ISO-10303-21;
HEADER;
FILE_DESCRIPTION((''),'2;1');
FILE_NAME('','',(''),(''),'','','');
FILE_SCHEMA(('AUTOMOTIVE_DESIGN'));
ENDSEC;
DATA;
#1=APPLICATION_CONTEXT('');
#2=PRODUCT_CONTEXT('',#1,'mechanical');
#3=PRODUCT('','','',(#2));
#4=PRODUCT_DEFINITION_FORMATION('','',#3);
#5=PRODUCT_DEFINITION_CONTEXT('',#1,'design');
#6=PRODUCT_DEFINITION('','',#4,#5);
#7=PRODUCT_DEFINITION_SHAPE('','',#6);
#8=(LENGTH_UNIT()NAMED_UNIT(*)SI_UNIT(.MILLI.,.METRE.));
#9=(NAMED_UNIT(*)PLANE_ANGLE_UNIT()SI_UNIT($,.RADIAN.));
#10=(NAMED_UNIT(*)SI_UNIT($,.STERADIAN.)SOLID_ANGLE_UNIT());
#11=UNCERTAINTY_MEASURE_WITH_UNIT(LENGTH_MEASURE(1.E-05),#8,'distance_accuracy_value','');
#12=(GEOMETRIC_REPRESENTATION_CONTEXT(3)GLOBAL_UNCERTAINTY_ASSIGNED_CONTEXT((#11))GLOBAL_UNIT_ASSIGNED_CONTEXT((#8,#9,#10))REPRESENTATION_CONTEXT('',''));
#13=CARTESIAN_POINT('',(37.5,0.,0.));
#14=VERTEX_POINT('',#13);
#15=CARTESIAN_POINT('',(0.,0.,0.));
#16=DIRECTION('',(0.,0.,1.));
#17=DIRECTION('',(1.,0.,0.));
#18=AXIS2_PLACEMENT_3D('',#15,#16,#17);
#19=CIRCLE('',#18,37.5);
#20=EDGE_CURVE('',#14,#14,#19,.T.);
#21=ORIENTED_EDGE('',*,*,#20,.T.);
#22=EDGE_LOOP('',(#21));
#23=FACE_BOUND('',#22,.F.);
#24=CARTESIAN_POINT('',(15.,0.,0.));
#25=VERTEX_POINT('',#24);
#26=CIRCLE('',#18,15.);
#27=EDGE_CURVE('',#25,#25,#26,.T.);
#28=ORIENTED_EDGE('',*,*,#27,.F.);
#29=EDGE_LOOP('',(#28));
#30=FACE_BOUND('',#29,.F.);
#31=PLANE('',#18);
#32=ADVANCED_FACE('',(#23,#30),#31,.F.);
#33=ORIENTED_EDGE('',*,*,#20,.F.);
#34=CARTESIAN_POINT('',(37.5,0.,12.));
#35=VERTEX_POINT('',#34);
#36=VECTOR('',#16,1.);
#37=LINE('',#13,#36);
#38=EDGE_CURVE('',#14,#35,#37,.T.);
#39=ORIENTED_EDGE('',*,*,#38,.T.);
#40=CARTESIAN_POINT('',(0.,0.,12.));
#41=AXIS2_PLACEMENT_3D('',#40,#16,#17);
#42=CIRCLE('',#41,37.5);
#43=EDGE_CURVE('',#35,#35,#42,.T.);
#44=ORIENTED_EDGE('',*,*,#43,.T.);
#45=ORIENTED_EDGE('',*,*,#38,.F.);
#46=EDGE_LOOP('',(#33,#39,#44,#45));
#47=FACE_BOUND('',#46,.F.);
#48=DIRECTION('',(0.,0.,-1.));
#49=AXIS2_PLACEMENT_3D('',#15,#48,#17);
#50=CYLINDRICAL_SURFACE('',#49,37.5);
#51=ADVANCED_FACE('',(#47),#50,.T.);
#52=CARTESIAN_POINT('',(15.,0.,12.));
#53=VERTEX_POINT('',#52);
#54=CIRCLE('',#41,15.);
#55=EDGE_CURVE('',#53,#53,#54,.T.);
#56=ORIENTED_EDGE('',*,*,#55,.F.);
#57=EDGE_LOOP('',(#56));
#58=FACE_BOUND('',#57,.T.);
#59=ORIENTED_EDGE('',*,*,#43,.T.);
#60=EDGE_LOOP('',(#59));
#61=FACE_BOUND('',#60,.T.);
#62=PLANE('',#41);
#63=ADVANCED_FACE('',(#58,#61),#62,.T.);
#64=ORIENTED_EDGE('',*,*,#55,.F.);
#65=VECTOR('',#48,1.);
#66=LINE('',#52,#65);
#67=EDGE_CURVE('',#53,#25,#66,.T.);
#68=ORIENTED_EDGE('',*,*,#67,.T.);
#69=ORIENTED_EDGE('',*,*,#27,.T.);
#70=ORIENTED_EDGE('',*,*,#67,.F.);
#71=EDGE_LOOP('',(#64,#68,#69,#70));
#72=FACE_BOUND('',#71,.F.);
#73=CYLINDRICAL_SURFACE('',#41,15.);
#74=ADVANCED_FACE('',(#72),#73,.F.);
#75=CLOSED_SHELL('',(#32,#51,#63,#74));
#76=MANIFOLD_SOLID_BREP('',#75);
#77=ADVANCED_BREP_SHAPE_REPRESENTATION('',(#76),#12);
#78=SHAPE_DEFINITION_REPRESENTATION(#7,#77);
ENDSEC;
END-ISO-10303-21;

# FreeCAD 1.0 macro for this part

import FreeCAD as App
import Part
import Sketcher

V = App.Vector
Q = App.Units.Quantity

doc = App.newDocument("Part")
body = doc.addObject("PartDesign::Body", "Body")

# Sketch on XY plane
sketch1 = body.newObject("Sketcher::SketchObject", "Sketch")
sketch1.AttachmentSupport = (doc.getObject("XY_Plane"), [""])
sketch1.MapMode = "FlatFace"
sketch1.addGeometry(Part.Circle(V(0, 0, 0), V(0, 0, 1), 38), False)
sketch1.addConstraint([
    Sketcher.Constraint("Coincident", 0, 3, -1, 1),
    Sketcher.Constraint("Diameter", 0, Q("75 mm")),
])
pad1 = body.newObject("PartDesign::Pad", "Pad")
pad1.Profile = sketch1
pad1.Length = 12

# Sketch on XY plane
sketch2 = body.newObject("Sketcher::SketchObject", "Sketch001")
sketch2.AttachmentSupport = (doc.getObject("XY_Plane"), [""])
sketch2.MapMode = "FlatFace"
sketch2.AttachmentOffset = App.Placement(V(0, 0, 12), App.Rotation())
sketch2.addGeometry(Part.Circle(V(0, 0, 0), V(0, 0, 1), 15), False)
sketch2.addConstraint([
    Sketcher.Constraint("Coincident", 0, 3, -1, 1),
    Sketcher.Constraint("Diameter", 0, Q("30 mm")),
])
pocket1 = body.newObject("PartDesign::Pocket", "Pocket")
pocket1.Profile = sketch2
pocket1.Type = "ThroughAll"

doc.recompute()
